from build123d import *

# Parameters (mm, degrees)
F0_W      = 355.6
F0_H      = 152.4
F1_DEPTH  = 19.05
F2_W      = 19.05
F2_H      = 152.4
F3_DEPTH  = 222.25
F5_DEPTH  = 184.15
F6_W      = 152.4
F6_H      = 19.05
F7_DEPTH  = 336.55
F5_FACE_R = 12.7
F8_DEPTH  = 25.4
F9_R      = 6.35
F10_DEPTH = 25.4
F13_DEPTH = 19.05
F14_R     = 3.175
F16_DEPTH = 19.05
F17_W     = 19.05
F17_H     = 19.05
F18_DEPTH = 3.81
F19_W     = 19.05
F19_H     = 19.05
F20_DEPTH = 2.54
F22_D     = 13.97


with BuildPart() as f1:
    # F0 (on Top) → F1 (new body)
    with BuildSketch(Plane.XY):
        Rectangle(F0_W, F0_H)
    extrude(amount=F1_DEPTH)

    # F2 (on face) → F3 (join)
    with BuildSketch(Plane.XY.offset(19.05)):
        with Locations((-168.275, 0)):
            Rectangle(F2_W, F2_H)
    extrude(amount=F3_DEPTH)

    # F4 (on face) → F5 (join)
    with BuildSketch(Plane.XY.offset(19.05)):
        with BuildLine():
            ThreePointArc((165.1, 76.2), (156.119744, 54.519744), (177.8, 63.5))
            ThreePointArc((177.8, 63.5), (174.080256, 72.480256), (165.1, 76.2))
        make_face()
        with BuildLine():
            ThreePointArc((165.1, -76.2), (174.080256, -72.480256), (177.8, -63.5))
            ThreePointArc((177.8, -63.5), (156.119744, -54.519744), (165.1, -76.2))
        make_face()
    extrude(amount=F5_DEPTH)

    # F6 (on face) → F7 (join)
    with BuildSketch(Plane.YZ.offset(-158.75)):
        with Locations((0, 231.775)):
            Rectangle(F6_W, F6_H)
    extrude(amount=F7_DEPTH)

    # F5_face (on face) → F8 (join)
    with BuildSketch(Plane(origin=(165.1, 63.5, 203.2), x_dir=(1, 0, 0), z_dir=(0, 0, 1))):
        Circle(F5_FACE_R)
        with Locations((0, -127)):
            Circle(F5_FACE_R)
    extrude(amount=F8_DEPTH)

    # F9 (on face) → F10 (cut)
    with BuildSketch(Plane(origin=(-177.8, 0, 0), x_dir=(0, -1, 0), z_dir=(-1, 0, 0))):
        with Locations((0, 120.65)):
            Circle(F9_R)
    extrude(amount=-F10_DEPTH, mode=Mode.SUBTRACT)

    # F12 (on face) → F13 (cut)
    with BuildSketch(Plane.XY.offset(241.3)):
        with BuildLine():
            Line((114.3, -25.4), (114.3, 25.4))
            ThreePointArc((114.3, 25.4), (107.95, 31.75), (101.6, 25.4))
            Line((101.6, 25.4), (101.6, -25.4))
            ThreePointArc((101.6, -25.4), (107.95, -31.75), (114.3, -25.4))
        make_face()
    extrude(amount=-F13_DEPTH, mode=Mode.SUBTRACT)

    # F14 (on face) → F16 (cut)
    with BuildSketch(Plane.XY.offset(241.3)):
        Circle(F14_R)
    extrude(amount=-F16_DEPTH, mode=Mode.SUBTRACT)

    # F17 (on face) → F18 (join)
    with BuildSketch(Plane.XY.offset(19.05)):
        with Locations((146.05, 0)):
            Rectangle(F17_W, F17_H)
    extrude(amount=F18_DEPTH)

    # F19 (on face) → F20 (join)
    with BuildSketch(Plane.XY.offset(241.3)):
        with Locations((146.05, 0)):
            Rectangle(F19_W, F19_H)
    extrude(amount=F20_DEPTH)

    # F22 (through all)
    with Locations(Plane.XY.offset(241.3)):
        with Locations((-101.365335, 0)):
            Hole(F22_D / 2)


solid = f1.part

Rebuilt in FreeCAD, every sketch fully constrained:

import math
import FreeCAD as App
import Part
import Sketcher

V = App.Vector
Q = App.Units.Quantity

doc = App.newDocument("Part")
body = doc.addObject("PartDesign::Body", "Body")

# Sketch on XY plane
sketch1 = body.newObject("Sketcher::SketchObject", "Sketch")
sketch1.AttachmentSupport = (doc.getObject("XY_Plane"), [""])
sketch1.MapMode = "FlatFace"
sketch1.addGeometry([
    Part.LineSegment(V(-177.8, 76.2, 0), V(-177.8, -76.2, 0)),
    Part.LineSegment(V(-177.8, -76.2, 0), V(177.8, -76.2, 0)),
    Part.LineSegment(V(177.8, -76.2, 0), V(177.8, 76.2, 0)),
    Part.LineSegment(V(177.8, 76.2, 0), V(-177.8, 76.2, 0)),
], False)
sketch1.addConstraint([
    Sketcher.Constraint("Coincident", 0, 2, 1, 1),
    Sketcher.Constraint("Coincident", 1, 2, 2, 1),
    Sketcher.Constraint("Coincident", 2, 2, 3, 1),
    Sketcher.Constraint("Coincident", 3, 2, 0, 1),
    Sketcher.Constraint("Vertical", 0),
    Sketcher.Constraint("Horizontal", 1),
    Sketcher.Constraint("Vertical", 2),
    Sketcher.Constraint("Horizontal", 3),
    Sketcher.Constraint("Symmetric", 0, 2, 2, 2, -1, 1),
    Sketcher.Constraint("DistanceX", 1, 1, 1, 2, Q("14 in")),
    Sketcher.Constraint("DistanceY", 0, 2, 0, 1, Q("6 in")),
])
pad1 = body.newObject("PartDesign::Pad", "Pad")
pad1.Profile = sketch1
pad1.Length = Q("0.75 in")

# Sketch on XY plane
sketch2 = body.newObject("Sketcher::SketchObject", "Sketch001")
sketch2.AttachmentSupport = (doc.getObject("XY_Plane"), [""])
sketch2.MapMode = "FlatFace"
sketch2.AttachmentOffset = App.Placement(V(0, 0, 0.75 * 25.4), App.Rotation())
sketch2.addGeometry([
    Part.LineSegment(V(-177.8, 76.2, 0), V(-177.8, -76.2, 0)),
    Part.LineSegment(V(-177.8, -76.2, 0), V(-158.75, -76.2, 0)),
    Part.LineSegment(V(-158.75, -76.2, 0), V(-158.75, 76.2, 0)),
    Part.LineSegment(V(-158.75, 76.2, 0), V(-177.8, 76.2, 0)),
], False)
sketch2.addConstraint([
    Sketcher.Constraint("Coincident", 0, 2, 1, 1),
    Sketcher.Constraint("Coincident", 1, 2, 2, 1),
    Sketcher.Constraint("Coincident", 2, 2, 3, 1),
    Sketcher.Constraint("Coincident", 3, 2, 0, 1),
    Sketcher.Constraint("Vertical", 0),
    Sketcher.Constraint("Horizontal", 1),
    Sketcher.Constraint("Vertical", 2),
    Sketcher.Constraint("Horizontal", 3),
    Sketcher.Constraint("DistanceY", 0, 2, 0, 1, Q("6 in")),
    Sketcher.Constraint("DistanceX", 0, 2, -1, 1, Q("7 in")),
    Sketcher.Constraint("DistanceY", 0, 2, -1, 1, Q("3 in")),
    Sketcher.Constraint("DistanceX", 1, 1, 1, 2, Q("0.75 in")),
])
pad2 = body.newObject("PartDesign::Pad", "Pad001")
pad2.Profile = sketch2
pad2.Length = Q("8.75 in")

# Sketch on XY plane
sketch3 = body.newObject("Sketcher::SketchObject", "Sketch002")
sketch3.AttachmentSupport = (doc.getObject("XY_Plane"), [""])
sketch3.MapMode = "FlatFace"
sketch3.AttachmentOffset = App.Placement(V(0, 0, 0.75 * 25.4), App.Rotation())
sketch3.addGeometry([
    Part.ArcOfCircle(Part.Circle(V(165.1, 63.5, 0), V(0, 0, 1), 12.7), math.radians(90), math.radians(360)),
    Part.ArcOfCircle(Part.Circle(V(165.1, 63.5, 0), V(0, 0, 1), 12.7), math.radians(0.000002), math.radians(89.999998)),
    Part.ArcOfCircle(Part.Circle(V(165.1, -63.5, 0), V(0, 0, 1), 12.7), math.radians(-89.999998), math.radians(-0.000002)),
    Part.ArcOfCircle(Part.Circle(V(165.1, -63.5, 0), V(0, 0, 1), 12.7), math.radians(0), math.radians(270)),
], False)
sketch3.addConstraint([
    Sketcher.Constraint("Tangent", 0, 1, 1, 2),
    Sketcher.Constraint("Coincident", 1, 1, 0, 2),
    Sketcher.Constraint("Tangent", 2, 1, 3, 2),
    Sketcher.Constraint("Coincident", 3, 1, 2, 2),
    Sketcher.Constraint("Equal", 1, 2),
    Sketcher.Constraint("Symmetric", 0, 3, 2, 3, -1),
    Sketcher.Constraint("Horizontal", 0, 3, 1, 1),
    Sketcher.Constraint("Horizontal", 2, 3, 3, 1),
    Sketcher.Constraint("Vertical", 3, 3, 0, 1),
    Sketcher.Constraint("Vertical", 0, 1, 2, 1),
    Sketcher.Constraint("Radius", 0, Q("0.5 in")),
    Sketcher.Constraint("DistanceY", -1, 1, 0, 1, Q("3 in")),
    Sketcher.Constraint("DistanceX", -1, 1, 1, 1, Q("7 in")),
])
pad3 = body.newObject("PartDesign::Pad", "Pad002")
pad3.Profile = sketch3
pad3.Length = Q("7.25 in")

# Sketch on YZ plane
sketch4 = body.newObject("Sketcher::SketchObject", "Sketch003")
sketch4.AttachmentSupport = (doc.getObject("YZ_Plane"), [""])
sketch4.MapMode = "FlatFace"
sketch4.AttachmentOffset = App.Placement(V(0, 0, -6.25 * 25.4), App.Rotation())
sketch4.addGeometry([
    Part.LineSegment(V(-76.2, 241.3, 0), V(-76.2, 222.25, 0)),
    Part.LineSegment(V(-76.2, 222.25, 0), V(76.2, 222.25, 0)),
    Part.LineSegment(V(76.2, 222.25, 0), V(76.2, 241.3, 0)),
    Part.LineSegment(V(76.2, 241.3, 0), V(-76.2, 241.3, 0)),
], False)
sketch4.addConstraint([
    Sketcher.Constraint("Coincident", 0, 2, 1, 1),
    Sketcher.Constraint("Coincident", 1, 2, 2, 1),
    Sketcher.Constraint("Coincident", 2, 2, 3, 1),
    Sketcher.Constraint("Coincident", 3, 2, 0, 1),
    Sketcher.Constraint("Vertical", 0),
    Sketcher.Constraint("Horizontal", 1),
    Sketcher.Constraint("Vertical", 2),
    Sketcher.Constraint("Horizontal", 3),
    Sketcher.Constraint("DistanceX", 1, 1, 1, 2, Q("6 in")),
    Sketcher.Constraint("DistanceX", 0, 2, -1, 1, Q("3 in")),
    Sketcher.Constraint("DistanceY", 0, 2, 0, 1, Q("0.75 in")),
    Sketcher.Constraint("DistanceY", -1, 1, 2, 2, Q("9.5 in")),
])
pad4 = body.newObject("PartDesign::Pad", "Pad003")
pad4.Profile = sketch4
pad4.Length = Q("13.25 in")

# Sketch on XY plane
sketch5 = body.newObject("Sketcher::SketchObject", "Sketch004")
sketch5.AttachmentSupport = (doc.getObject("XY_Plane"), [""])
sketch5.MapMode = "FlatFace"
sketch5.AttachmentOffset = App.Placement(V(0, 0, 8 * 25.4), App.Rotation())
sketch5.addGeometry([
    Part.Circle(V(165.1, 63.5, 0), V(0, 0, 1), 12.7),
    Part.Circle(V(165.1, -63.5, 0), V(0, 0, 1), 12.7),
], False)
sketch5.addConstraint([
    Sketcher.Constraint("Equal", 0, 1),
    Sketcher.Constraint("Symmetric", 0, 3, 1, 3, -1),
    Sketcher.Constraint("Diameter", 0, Q("1 in")),
    Sketcher.Constraint("DistanceY", 1, 3, 0, 3, Q("5 in")),
    Sketcher.Constraint("DistanceX", -1, 1, 0, 3, Q("6.5 in")),
])
pad5 = body.newObject("PartDesign::Pad", "Pad004")
pad5.Profile = sketch5
pad5.Length = Q("1 in")

# Sketch on YZ plane
sketch6 = body.newObject("Sketcher::SketchObject", "Sketch005")
sketch6.AttachmentSupport = (doc.getObject("YZ_Plane"), [""])
sketch6.MapMode = "FlatFace"
sketch6.AttachmentOffset = App.Placement(V(0, 0, -7 * 25.4), App.Rotation())
sketch6.addGeometry(Part.Circle(V(0, 120.65, 0), V(0, 0, 1), 6.35), False)
sketch6.addConstraint([
    Sketcher.Constraint("PointOnObject", 0, 3, -2),
    Sketcher.Constraint("Diameter", 0, Q("0.5 in")),
    Sketcher.Constraint("DistanceY", -1, 1, 0, 3, Q("4.75 in")),
])
pocket1 = body.newObject("PartDesign::Pocket", "Pocket")
pocket1.Profile = sketch6
pocket1.Length = Q("1 in")
pocket1.Reversed = True

# Sketch on XY plane
sketch7 = body.newObject("Sketcher::SketchObject", "Sketch006")
sketch7.AttachmentSupport = (doc.getObject("XY_Plane"), [""])
sketch7.MapMode = "FlatFace"
sketch7.AttachmentOffset = App.Placement(V(0, 0, 9.5 * 25.4), App.Rotation())
sketch7.addGeometry([
    Part.LineSegment(V(114.3, -25.4, 0), V(114.3, 25.4, 0)),
    Part.ArcOfCircle(Part.Circle(V(107.95, 25.4, 0), V(0, 0, 1), 6.35), math.radians(0), math.radians(180)),
    Part.LineSegment(V(101.6, 25.4, 0), V(101.6, -25.4, 0)),
    Part.ArcOfCircle(Part.Circle(V(107.95, -25.4, 0), V(0, 0, 1), 6.35), math.radians(180), math.radians(360)),
], False)
sketch7.addConstraint([
    Sketcher.Constraint("Tangent", 0, 2, 1, 1),
    Sketcher.Constraint("Tangent", 1, 2, 2, 1),
    Sketcher.Constraint("Tangent", 2, 2, 3, 1),
    Sketcher.Constraint("Tangent", 3, 2, 0, 1),
    Sketcher.Constraint("Vertical", 0),
    Sketcher.Constraint("Vertical", 2),
    Sketcher.Constraint("DistanceY", 0, 1, 0, 2, Q("2 in")),
    Sketcher.Constraint("Radius", 1, Q("0.25 in")),
    Sketcher.Constraint("DistanceY", -1, 1, 1, 3, Q("1 in")),
    Sketcher.Constraint("DistanceX", -1, 1, 1, 2, Q("4 in")),
])
pocket2 = body.newObject("PartDesign::Pocket", "Pocket001")
pocket2.Profile = sketch7
pocket2.Length = Q("0.75 in")

# Sketch on XY plane
sketch8 = body.newObject("Sketcher::SketchObject", "Sketch007")
sketch8.AttachmentSupport = (doc.getObject("XY_Plane"), [""])
sketch8.MapMode = "FlatFace"
sketch8.AttachmentOffset = App.Placement(V(0, 0, 9.5 * 25.4), App.Rotation())
sketch8.addGeometry(Part.Circle(V(0, 0, 0), V(0, 0, 1), 3.175), False)
sketch8.addConstraint([
    Sketcher.Constraint("Coincident", 0, 3, -1, 1),
    Sketcher.Constraint("Diameter", 0, Q("0.25 in")),
])
pocket3 = body.newObject("PartDesign::Pocket", "Pocket002")
pocket3.Profile = sketch8
pocket3.Length = Q("0.75 in")

# Sketch on XY plane
sketch9 = body.newObject("Sketcher::SketchObject", "Sketch008")
sketch9.AttachmentSupport = (doc.getObject("XY_Plane"), [""])
sketch9.MapMode = "FlatFace"
sketch9.AttachmentOffset = App.Placement(V(0, 0, 0.75 * 25.4), App.Rotation())
sketch9.addGeometry([
    Part.LineSegment(V(136.525, 9.525, 0), V(136.525, -9.525, 0)),
    Part.LineSegment(V(136.525, -9.525, 0), V(155.575, -9.525, 0)),
    Part.LineSegment(V(155.575, -9.525, 0), V(155.575, 9.525, 0)),
    Part.LineSegment(V(155.575, 9.525, 0), V(136.525, 9.525, 0)),
], False)
sketch9.addConstraint([
    Sketcher.Constraint("Coincident", 0, 2, 1, 1),
    Sketcher.Constraint("Coincident", 1, 2, 2, 1),
    Sketcher.Constraint("Coincident", 2, 2, 3, 1),
    Sketcher.Constraint("Coincident", 3, 2, 0, 1),
    Sketcher.Constraint("Vertical", 0),
    Sketcher.Constraint("Horizontal", 1),
    Sketcher.Constraint("Vertical", 2),
    Sketcher.Constraint("Horizontal", 3),
    Sketcher.Constraint("Equal", 3, 0),
    Sketcher.Constraint("DistanceX", 1, 1, 1, 2, Q("0.75 in")),
    Sketcher.Constraint("DistanceX", -1, 1, 0, 2, Q("5.375 in")),
    Sketcher.Constraint("DistanceY", 0, 2, -1, 1, Q("0.375 in")),
])
pad6 = body.newObject("PartDesign::Pad", "Pad005")
pad6.Profile = sketch9
pad6.Length = Q("0.15 in")

# Sketch on XY plane
sketch10 = body.newObject("Sketcher::SketchObject", "Sketch009")
sketch10.AttachmentSupport = (doc.getObject("XY_Plane"), [""])
sketch10.MapMode = "FlatFace"
sketch10.AttachmentOffset = App.Placement(V(0, 0, 9.5 * 25.4), App.Rotation())
sketch10.addGeometry([
    Part.LineSegment(V(136.525, 9.525, 0), V(136.525, -9.525, 0)),
    Part.LineSegment(V(136.525, -9.525, 0), V(155.575, -9.525, 0)),
    Part.LineSegment(V(155.575, -9.525, 0), V(155.575, 9.525, 0)),
    Part.LineSegment(V(155.575, 9.525, 0), V(136.525, 9.525, 0)),
], False)
sketch10.addConstraint([
    Sketcher.Constraint("Coincident", 0, 2, 1, 1),
    Sketcher.Constraint("Coincident", 1, 2, 2, 1),
    Sketcher.Constraint("Coincident", 2, 2, 3, 1),
    Sketcher.Constraint("Coincident", 3, 2, 0, 1),
    Sketcher.Constraint("Vertical", 0),
    Sketcher.Constraint("Horizontal", 1),
    Sketcher.Constraint("Vertical", 2),
    Sketcher.Constraint("Horizontal", 3),
    Sketcher.Constraint("Equal", 3, 0),
    Sketcher.Constraint("DistanceX", 1, 1, 1, 2, Q("0.75 in")),
    Sketcher.Constraint("DistanceX", -1, 1, 0, 2, Q("5.375 in")),
    Sketcher.Constraint("DistanceY", 0, 2, -1, 1, Q("0.375 in")),
])
pad7 = body.newObject("PartDesign::Pad", "Pad006")
pad7.Profile = sketch10
pad7.Length = Q("0.1 in")

# Sketch on XY plane
sketch11 = body.newObject("Sketcher::SketchObject", "Sketch010")
sketch11.AttachmentSupport = (doc.getObject("XY_Plane"), [""])
sketch11.MapMode = "FlatFace"
sketch11.AttachmentOffset = App.Placement(V(0, 0, 9.5 * 25.4), App.Rotation())
sketch11.addGeometry(Part.Circle(V(-101.365335, 0, 0), V(0, 0, 1), 6.985), False)
sketch11.addConstraint([
    Sketcher.Constraint("PointOnObject", 0, 3, -1),
    Sketcher.Constraint("Diameter", 0, Q("0.55 in")),
    Sketcher.Constraint("DistanceX", 0, 3, -1, 1, Q("101.365335 mm")),
])
doc.recompute()
hole = body.newObject("PartDesign::Hole", "Hole")
hole.Profile = sketch11
hole.ThreadType = "None"
hole.Diameter = Q("0.55 in")
hole.DepthType = "ThroughAll"

doc.recompute()
